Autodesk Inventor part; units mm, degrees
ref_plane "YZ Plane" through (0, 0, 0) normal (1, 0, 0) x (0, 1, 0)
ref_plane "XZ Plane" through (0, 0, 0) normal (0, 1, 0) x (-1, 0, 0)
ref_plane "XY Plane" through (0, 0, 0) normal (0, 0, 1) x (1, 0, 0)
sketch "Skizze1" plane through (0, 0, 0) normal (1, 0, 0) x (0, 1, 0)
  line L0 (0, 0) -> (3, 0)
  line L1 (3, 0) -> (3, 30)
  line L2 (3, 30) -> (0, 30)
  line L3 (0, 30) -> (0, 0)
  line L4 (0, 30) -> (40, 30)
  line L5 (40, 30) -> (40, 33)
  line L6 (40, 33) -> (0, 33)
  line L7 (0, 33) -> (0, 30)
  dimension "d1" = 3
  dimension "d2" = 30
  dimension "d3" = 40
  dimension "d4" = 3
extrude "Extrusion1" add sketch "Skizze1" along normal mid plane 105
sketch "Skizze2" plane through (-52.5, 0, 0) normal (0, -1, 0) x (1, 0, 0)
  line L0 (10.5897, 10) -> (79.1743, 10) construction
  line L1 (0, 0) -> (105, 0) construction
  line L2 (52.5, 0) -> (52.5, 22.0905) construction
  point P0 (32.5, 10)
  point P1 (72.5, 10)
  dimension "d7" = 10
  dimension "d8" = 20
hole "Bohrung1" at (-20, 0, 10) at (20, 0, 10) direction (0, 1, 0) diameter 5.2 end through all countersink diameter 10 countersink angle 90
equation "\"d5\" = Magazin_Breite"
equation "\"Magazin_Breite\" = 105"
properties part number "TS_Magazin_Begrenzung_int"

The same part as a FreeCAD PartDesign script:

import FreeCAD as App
import Part
import Sketcher
Q = App.Units.Quantity


def add_polygon(sketch, points):
    """Adds a closed chain of lines whose ends are joined by coincident constraints."""
    first, n = sketch.GeometryCount, len(points)
    for a, b in zip(points, points[1:] + points[:1]):
        sketch.addGeometry(Part.LineSegment(App.Vector(*a, 0), App.Vector(*b, 0)), False)
    for i in range(n):
        sketch.addConstraint(Sketcher.Constraint("Coincident", first + i, 2, first + (i + 1) % n, 1))

doc = App.newDocument("Part")
body = doc.addObject("PartDesign::Body", "Body")

# Sketch on YZ plane
sketch1 = body.newObject("Sketcher::SketchObject", "Sketch")
sketch1.AttachmentSupport = (doc.getObject("YZ_Plane"), [""])
sketch1.MapMode = "FlatFace"
add_polygon(sketch1, [(0, 0), (3, 0), (3, 30), (40, 30), (40, 33), (0, 33)])  # lines 0-5
sketch1.addConstraint([
    Sketcher.Constraint("Horizontal", 0),
    Sketcher.Constraint("Vertical", 1),
    Sketcher.Constraint("Horizontal", 2),
    Sketcher.Constraint("Vertical", 3),
    Sketcher.Constraint("Horizontal", 4),
    Sketcher.Constraint("Vertical", 5),
    Sketcher.Constraint("Coincident", 5, 2, -1, 1),
    Sketcher.Constraint("Equal", 0, 3),
    Sketcher.Constraint("DistanceX", 0, 1, 0, 2, Q("3 mm")),
    Sketcher.Constraint("DistanceX", 4, 2, 4, 1, Q("40 mm")),
    Sketcher.Constraint("DistanceY", 1, 1, 1, 2, Q("30 mm")),
])
pad1 = body.newObject("PartDesign::Pad", "Pad")
pad1.Profile = sketch1
pad1.Length = 105
pad1.Midplane = True

# Sketch on XZ plane
sketch2 = body.newObject("Sketcher::SketchObject", "Sketch001")
sketch2.AttachmentSupport = (doc.getObject("XZ_Plane"), [""])
sketch2.MapMode = "FlatFace"
sketch2.addGeometry([
    Part.Circle(App.Vector(-20, 10, 0), App.Vector(0, 0, 1), 2.6),
    Part.Circle(App.Vector(20, 10, 0), App.Vector(0, 0, 1), 2.6),
], False)
sketch2.addConstraint([
    Sketcher.Constraint("Equal", 0, 1),
    Sketcher.Constraint("Symmetric", 0, 3, 1, 3, -2),
    Sketcher.Constraint("Diameter", 0, Q("5.2 mm")),
    Sketcher.Constraint("DistanceX", 0, 3, -1, 1, Q("20 mm")),
    Sketcher.Constraint("DistanceY", -1, 1, 0, 3, Q("10 mm")),
])
doc.recompute()
hole = body.newObject("PartDesign::Hole", "Hole")
hole.Profile = sketch2
hole.ThreadType = "None"
hole.Diameter = 5.2
hole.DepthType = "ThroughAll"
hole.HoleCutType = "Countersink"
hole.HoleCutDiameter = 10
hole.HoleCutCountersinkAngle = 90

doc.recompute()
